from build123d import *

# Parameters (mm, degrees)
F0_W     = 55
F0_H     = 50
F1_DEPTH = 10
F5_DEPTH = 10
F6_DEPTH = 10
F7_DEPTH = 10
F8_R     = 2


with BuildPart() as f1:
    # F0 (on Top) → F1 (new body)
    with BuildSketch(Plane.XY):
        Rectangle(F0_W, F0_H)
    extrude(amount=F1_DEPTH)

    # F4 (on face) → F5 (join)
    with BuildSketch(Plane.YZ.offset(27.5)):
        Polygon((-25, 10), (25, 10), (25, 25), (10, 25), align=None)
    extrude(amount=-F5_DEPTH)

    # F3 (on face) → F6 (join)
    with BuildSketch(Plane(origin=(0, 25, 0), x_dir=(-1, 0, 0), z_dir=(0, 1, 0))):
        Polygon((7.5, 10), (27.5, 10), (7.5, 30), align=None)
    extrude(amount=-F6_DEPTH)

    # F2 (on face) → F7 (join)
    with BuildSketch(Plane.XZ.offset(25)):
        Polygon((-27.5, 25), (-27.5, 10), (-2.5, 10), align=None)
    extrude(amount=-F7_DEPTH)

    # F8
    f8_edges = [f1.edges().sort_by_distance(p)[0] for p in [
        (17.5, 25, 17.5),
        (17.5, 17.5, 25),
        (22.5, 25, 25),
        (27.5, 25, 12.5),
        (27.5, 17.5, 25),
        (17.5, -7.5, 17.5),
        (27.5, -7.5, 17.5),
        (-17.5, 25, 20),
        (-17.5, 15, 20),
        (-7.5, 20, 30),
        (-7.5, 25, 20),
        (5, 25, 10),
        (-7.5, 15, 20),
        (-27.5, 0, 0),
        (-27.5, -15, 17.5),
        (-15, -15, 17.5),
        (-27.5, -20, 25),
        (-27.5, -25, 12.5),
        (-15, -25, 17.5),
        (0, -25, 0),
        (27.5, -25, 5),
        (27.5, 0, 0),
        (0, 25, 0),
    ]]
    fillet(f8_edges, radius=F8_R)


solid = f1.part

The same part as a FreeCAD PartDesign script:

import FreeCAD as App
import Part
import Sketcher
from FreeCAD import Vector
Q = App.Units.Quantity


def edges_at(feature, points):
    """Names of the edges that pass closest to the given points."""
    edges = feature.Shape.Edges
    near = lambda p: min(range(len(edges)), key=lambda i: edges[i].distToShape(Part.Vertex(*p))[0])
    return sorted({f"Edge{near(p) + 1}" for p in points})


def add_polygon(sketch, points):
    """Adds a closed chain of lines whose ends are joined by coincident constraints."""
    first, n = sketch.GeometryCount, len(points)
    for a, b in zip(points, points[1:] + points[:1]):
        sketch.addGeometry(Part.LineSegment(App.Vector(*a, 0), App.Vector(*b, 0)), False)
    for i in range(n):
        sketch.addConstraint(Sketcher.Constraint("Coincident", first + i, 2, first + (i + 1) % n, 1))

doc = App.newDocument("Part")
params = doc.addObject("Spreadsheet::Sheet", "Params")
for row, (alias, value) in enumerate([
    ("sketch1_width", "55 mm"),
    ("sketch1_height", "50 mm"),
    ("pad1_length", "10 mm"),
    ("sketch2_width", "50 mm"),
    ("sketch2_width2", "15 mm"),
    ("pad2_length", "10 mm"),
    ("sketch3_width", "20 mm"),
    ("pad3_length", "10 mm"),
    ("sketch4_width", "25 mm"),
    ("sketch4_height", "15 mm"),
    ("pad4_length", "10 mm"),
    ("fillet_radius", "2 mm"),
], start=1):
    params.set(f"A{row}", alias)
    params.set(f"B{row}", "=" + value)
    params.setAlias(f"B{row}", alias)

body = doc.addObject("PartDesign::Body", "Body")

# Sketch on XY plane
sketch1 = doc.addObject("Sketcher::SketchObject", "Sketch")
body.addObject(sketch1)
sketch1.AttachmentSupport = (doc.XY_Plane, [""])
sketch1.MapMode = "FlatFace"
add_polygon(sketch1, [(-28, 25), (-28, -25), (28, -25), (28, 25)])  # lines 0-3
sketch1.addConstraint([
    Sketcher.Constraint("Vertical", 0),
    Sketcher.Constraint("Horizontal", 1),
    Sketcher.Constraint("Vertical", 2),
    Sketcher.Constraint("Horizontal", 3),
    Sketcher.Constraint("Symmetric", 0, 2, 2, 2, -1, 1),
    Sketcher.Constraint("DistanceX", 1, 1, 1, 2, Q("55 mm")),
    Sketcher.Constraint("DistanceY", 0, 2, 0, 1, Q("50 mm")),
])
sketch1.setExpression("Constraints[9]", "Params.sketch1_width")
sketch1.setExpression("Constraints[10]", "Params.sketch1_height")
pad1 = doc.addObject("PartDesign::Pad", "Pad")
body.addObject(pad1)
pad1.Profile = sketch1
pad1.setExpression("Length", "Params.pad1_length")

# Sketch on YZ plane
sketch2 = doc.addObject("Sketcher::SketchObject", "Sketch001")
body.addObject(sketch2)
sketch2.AttachmentSupport = (doc.YZ_Plane, [""])
sketch2.MapMode = "FlatFace"
sketch2.AttachmentOffset = App.Placement(Vector(0, 0, 27.5), App.Rotation())
add_polygon(sketch2, [(-25, 10), (25, 10), (25, 25), (10, 25)])  # lines 0-3
sketch2.addConstraint([
    Sketcher.Constraint("Horizontal", 0),
    Sketcher.Constraint("Vertical", 1),
    Sketcher.Constraint("Horizontal", 2),
    Sketcher.Constraint("Equal", 2, 1),
    Sketcher.Constraint("DistanceX", 0, 1, 0, 2, Q("50 mm")),
    Sketcher.Constraint("DistanceX", 2, 2, 2, 1, Q("15 mm")),
    Sketcher.Constraint("DistanceX", -1, 1, 0, 2, Q("25 mm")),
    Sketcher.Constraint("DistanceY", -1, 1, 0, 2, Q("10 mm")),
])
sketch2.setExpression("Constraints[8]", "Params.sketch2_width")
sketch2.setExpression("Constraints[9]", "Params.sketch2_width2")
pad2 = doc.addObject("PartDesign::Pad", "Pad001")
body.addObject(pad2)
pad2.Profile = sketch2
pad2.setExpression("Length", "Params.pad2_length")
pad2.Reversed = True

# Sketch on XZ plane
sketch3 = doc.addObject("Sketcher::SketchObject", "Sketch002")
body.addObject(sketch3)
sketch3.AttachmentSupport = (doc.XZ_Plane, [""])
sketch3.MapMode = "FlatFace"
sketch3.AttachmentOffset = App.Placement(Vector(0, 0, -25), App.Rotation())
add_polygon(sketch3, [(-8, 10), (-28, 10), (-8, 30)])  # lines 0-2
sketch3.addConstraint([
    Sketcher.Constraint("Horizontal", 0),
    Sketcher.Constraint("Vertical", 2),
    Sketcher.Constraint("Equal", 0, 2),
    Sketcher.Constraint("DistanceX", 0, 2, 0, 1, Q("20 mm")),
    Sketcher.Constraint("DistanceY", -1, 1, 0, 2, Q("10 mm")),
    Sketcher.Constraint("DistanceX", 0, 2, -1, 1, Q("27.5 mm")),
])
sketch3.setExpression("Constraints[6]", "Params.sketch3_width")
pad3 = doc.addObject("PartDesign::Pad", "Pad002")
body.addObject(pad3)
pad3.Profile = sketch3
pad3.setExpression("Length", "Params.pad3_length")

# Sketch on XZ plane
sketch4 = doc.addObject("Sketcher::SketchObject", "Sketch003")
body.addObject(sketch4)
sketch4.AttachmentSupport = (doc.XZ_Plane, [""])
sketch4.MapMode = "FlatFace"
sketch4.AttachmentOffset = App.Placement(Vector(0, 0, 25), App.Rotation())
add_polygon(sketch4, [(-28, 25), (-28, 10), (-2, 10)])  # lines 0-2
sketch4.addConstraint([
    Sketcher.Constraint("Vertical", 0),
    Sketcher.Constraint("Horizontal", 1),
    Sketcher.Constraint("DistanceX", 1, 1, 1, 2, Q("25 mm")),
    Sketcher.Constraint("DistanceY", 0, 2, 0, 1, Q("15 mm")),
    Sketcher.Constraint("DistanceY", -1, 1, 0, 2, Q("10 mm")),
    Sketcher.Constraint("DistanceX", 0, 2, -1, 1, Q("27.5 mm")),
])
sketch4.setExpression("Constraints[5]", "Params.sketch4_width")
sketch4.setExpression("Constraints[6]", "Params.sketch4_height")
pad4 = doc.addObject("PartDesign::Pad", "Pad003")
body.addObject(pad4)
pad4.Profile = sketch4
pad4.setExpression("Length", "Params.pad4_length")
pad4.Reversed = True
doc.recompute()

fillet = doc.addObject("PartDesign::Fillet", "Fillet")
body.addObject(fillet)
fillet.Base = (pad4, edges_at(pad4, [
    (17.5, 25, 17.5),
    (17.5, 17.5, 25),
    (22.5, 25, 25),
    (27.5, 25, 12.5),
    (27.5, 17.5, 25),
    (17.5, -7.5, 17.5),
    (27.5, -7.5, 17.5),
    (-17.5, 25, 20),
    (-17.5, 15, 20),
    (-7.5, 20, 30),
    (-7.5, 25, 20),
    (5, 25, 10),
    (-7.5, 15, 20),
    (-27.5, 0, 0),
    (-27.5, -15, 17.5),
    (-15, -15, 17.5),
    (-27.5, -20, 25),
    (-27.5, -25, 12.5),
    (-15, -25, 17.5),
    (0, -25, 0),
    (27.5, -25, 5),
    (27.5, 0, 0),
    (0, 25, 0),
]))
fillet.setExpression("Radius", "Params.fillet_radius")

doc.recompute()
